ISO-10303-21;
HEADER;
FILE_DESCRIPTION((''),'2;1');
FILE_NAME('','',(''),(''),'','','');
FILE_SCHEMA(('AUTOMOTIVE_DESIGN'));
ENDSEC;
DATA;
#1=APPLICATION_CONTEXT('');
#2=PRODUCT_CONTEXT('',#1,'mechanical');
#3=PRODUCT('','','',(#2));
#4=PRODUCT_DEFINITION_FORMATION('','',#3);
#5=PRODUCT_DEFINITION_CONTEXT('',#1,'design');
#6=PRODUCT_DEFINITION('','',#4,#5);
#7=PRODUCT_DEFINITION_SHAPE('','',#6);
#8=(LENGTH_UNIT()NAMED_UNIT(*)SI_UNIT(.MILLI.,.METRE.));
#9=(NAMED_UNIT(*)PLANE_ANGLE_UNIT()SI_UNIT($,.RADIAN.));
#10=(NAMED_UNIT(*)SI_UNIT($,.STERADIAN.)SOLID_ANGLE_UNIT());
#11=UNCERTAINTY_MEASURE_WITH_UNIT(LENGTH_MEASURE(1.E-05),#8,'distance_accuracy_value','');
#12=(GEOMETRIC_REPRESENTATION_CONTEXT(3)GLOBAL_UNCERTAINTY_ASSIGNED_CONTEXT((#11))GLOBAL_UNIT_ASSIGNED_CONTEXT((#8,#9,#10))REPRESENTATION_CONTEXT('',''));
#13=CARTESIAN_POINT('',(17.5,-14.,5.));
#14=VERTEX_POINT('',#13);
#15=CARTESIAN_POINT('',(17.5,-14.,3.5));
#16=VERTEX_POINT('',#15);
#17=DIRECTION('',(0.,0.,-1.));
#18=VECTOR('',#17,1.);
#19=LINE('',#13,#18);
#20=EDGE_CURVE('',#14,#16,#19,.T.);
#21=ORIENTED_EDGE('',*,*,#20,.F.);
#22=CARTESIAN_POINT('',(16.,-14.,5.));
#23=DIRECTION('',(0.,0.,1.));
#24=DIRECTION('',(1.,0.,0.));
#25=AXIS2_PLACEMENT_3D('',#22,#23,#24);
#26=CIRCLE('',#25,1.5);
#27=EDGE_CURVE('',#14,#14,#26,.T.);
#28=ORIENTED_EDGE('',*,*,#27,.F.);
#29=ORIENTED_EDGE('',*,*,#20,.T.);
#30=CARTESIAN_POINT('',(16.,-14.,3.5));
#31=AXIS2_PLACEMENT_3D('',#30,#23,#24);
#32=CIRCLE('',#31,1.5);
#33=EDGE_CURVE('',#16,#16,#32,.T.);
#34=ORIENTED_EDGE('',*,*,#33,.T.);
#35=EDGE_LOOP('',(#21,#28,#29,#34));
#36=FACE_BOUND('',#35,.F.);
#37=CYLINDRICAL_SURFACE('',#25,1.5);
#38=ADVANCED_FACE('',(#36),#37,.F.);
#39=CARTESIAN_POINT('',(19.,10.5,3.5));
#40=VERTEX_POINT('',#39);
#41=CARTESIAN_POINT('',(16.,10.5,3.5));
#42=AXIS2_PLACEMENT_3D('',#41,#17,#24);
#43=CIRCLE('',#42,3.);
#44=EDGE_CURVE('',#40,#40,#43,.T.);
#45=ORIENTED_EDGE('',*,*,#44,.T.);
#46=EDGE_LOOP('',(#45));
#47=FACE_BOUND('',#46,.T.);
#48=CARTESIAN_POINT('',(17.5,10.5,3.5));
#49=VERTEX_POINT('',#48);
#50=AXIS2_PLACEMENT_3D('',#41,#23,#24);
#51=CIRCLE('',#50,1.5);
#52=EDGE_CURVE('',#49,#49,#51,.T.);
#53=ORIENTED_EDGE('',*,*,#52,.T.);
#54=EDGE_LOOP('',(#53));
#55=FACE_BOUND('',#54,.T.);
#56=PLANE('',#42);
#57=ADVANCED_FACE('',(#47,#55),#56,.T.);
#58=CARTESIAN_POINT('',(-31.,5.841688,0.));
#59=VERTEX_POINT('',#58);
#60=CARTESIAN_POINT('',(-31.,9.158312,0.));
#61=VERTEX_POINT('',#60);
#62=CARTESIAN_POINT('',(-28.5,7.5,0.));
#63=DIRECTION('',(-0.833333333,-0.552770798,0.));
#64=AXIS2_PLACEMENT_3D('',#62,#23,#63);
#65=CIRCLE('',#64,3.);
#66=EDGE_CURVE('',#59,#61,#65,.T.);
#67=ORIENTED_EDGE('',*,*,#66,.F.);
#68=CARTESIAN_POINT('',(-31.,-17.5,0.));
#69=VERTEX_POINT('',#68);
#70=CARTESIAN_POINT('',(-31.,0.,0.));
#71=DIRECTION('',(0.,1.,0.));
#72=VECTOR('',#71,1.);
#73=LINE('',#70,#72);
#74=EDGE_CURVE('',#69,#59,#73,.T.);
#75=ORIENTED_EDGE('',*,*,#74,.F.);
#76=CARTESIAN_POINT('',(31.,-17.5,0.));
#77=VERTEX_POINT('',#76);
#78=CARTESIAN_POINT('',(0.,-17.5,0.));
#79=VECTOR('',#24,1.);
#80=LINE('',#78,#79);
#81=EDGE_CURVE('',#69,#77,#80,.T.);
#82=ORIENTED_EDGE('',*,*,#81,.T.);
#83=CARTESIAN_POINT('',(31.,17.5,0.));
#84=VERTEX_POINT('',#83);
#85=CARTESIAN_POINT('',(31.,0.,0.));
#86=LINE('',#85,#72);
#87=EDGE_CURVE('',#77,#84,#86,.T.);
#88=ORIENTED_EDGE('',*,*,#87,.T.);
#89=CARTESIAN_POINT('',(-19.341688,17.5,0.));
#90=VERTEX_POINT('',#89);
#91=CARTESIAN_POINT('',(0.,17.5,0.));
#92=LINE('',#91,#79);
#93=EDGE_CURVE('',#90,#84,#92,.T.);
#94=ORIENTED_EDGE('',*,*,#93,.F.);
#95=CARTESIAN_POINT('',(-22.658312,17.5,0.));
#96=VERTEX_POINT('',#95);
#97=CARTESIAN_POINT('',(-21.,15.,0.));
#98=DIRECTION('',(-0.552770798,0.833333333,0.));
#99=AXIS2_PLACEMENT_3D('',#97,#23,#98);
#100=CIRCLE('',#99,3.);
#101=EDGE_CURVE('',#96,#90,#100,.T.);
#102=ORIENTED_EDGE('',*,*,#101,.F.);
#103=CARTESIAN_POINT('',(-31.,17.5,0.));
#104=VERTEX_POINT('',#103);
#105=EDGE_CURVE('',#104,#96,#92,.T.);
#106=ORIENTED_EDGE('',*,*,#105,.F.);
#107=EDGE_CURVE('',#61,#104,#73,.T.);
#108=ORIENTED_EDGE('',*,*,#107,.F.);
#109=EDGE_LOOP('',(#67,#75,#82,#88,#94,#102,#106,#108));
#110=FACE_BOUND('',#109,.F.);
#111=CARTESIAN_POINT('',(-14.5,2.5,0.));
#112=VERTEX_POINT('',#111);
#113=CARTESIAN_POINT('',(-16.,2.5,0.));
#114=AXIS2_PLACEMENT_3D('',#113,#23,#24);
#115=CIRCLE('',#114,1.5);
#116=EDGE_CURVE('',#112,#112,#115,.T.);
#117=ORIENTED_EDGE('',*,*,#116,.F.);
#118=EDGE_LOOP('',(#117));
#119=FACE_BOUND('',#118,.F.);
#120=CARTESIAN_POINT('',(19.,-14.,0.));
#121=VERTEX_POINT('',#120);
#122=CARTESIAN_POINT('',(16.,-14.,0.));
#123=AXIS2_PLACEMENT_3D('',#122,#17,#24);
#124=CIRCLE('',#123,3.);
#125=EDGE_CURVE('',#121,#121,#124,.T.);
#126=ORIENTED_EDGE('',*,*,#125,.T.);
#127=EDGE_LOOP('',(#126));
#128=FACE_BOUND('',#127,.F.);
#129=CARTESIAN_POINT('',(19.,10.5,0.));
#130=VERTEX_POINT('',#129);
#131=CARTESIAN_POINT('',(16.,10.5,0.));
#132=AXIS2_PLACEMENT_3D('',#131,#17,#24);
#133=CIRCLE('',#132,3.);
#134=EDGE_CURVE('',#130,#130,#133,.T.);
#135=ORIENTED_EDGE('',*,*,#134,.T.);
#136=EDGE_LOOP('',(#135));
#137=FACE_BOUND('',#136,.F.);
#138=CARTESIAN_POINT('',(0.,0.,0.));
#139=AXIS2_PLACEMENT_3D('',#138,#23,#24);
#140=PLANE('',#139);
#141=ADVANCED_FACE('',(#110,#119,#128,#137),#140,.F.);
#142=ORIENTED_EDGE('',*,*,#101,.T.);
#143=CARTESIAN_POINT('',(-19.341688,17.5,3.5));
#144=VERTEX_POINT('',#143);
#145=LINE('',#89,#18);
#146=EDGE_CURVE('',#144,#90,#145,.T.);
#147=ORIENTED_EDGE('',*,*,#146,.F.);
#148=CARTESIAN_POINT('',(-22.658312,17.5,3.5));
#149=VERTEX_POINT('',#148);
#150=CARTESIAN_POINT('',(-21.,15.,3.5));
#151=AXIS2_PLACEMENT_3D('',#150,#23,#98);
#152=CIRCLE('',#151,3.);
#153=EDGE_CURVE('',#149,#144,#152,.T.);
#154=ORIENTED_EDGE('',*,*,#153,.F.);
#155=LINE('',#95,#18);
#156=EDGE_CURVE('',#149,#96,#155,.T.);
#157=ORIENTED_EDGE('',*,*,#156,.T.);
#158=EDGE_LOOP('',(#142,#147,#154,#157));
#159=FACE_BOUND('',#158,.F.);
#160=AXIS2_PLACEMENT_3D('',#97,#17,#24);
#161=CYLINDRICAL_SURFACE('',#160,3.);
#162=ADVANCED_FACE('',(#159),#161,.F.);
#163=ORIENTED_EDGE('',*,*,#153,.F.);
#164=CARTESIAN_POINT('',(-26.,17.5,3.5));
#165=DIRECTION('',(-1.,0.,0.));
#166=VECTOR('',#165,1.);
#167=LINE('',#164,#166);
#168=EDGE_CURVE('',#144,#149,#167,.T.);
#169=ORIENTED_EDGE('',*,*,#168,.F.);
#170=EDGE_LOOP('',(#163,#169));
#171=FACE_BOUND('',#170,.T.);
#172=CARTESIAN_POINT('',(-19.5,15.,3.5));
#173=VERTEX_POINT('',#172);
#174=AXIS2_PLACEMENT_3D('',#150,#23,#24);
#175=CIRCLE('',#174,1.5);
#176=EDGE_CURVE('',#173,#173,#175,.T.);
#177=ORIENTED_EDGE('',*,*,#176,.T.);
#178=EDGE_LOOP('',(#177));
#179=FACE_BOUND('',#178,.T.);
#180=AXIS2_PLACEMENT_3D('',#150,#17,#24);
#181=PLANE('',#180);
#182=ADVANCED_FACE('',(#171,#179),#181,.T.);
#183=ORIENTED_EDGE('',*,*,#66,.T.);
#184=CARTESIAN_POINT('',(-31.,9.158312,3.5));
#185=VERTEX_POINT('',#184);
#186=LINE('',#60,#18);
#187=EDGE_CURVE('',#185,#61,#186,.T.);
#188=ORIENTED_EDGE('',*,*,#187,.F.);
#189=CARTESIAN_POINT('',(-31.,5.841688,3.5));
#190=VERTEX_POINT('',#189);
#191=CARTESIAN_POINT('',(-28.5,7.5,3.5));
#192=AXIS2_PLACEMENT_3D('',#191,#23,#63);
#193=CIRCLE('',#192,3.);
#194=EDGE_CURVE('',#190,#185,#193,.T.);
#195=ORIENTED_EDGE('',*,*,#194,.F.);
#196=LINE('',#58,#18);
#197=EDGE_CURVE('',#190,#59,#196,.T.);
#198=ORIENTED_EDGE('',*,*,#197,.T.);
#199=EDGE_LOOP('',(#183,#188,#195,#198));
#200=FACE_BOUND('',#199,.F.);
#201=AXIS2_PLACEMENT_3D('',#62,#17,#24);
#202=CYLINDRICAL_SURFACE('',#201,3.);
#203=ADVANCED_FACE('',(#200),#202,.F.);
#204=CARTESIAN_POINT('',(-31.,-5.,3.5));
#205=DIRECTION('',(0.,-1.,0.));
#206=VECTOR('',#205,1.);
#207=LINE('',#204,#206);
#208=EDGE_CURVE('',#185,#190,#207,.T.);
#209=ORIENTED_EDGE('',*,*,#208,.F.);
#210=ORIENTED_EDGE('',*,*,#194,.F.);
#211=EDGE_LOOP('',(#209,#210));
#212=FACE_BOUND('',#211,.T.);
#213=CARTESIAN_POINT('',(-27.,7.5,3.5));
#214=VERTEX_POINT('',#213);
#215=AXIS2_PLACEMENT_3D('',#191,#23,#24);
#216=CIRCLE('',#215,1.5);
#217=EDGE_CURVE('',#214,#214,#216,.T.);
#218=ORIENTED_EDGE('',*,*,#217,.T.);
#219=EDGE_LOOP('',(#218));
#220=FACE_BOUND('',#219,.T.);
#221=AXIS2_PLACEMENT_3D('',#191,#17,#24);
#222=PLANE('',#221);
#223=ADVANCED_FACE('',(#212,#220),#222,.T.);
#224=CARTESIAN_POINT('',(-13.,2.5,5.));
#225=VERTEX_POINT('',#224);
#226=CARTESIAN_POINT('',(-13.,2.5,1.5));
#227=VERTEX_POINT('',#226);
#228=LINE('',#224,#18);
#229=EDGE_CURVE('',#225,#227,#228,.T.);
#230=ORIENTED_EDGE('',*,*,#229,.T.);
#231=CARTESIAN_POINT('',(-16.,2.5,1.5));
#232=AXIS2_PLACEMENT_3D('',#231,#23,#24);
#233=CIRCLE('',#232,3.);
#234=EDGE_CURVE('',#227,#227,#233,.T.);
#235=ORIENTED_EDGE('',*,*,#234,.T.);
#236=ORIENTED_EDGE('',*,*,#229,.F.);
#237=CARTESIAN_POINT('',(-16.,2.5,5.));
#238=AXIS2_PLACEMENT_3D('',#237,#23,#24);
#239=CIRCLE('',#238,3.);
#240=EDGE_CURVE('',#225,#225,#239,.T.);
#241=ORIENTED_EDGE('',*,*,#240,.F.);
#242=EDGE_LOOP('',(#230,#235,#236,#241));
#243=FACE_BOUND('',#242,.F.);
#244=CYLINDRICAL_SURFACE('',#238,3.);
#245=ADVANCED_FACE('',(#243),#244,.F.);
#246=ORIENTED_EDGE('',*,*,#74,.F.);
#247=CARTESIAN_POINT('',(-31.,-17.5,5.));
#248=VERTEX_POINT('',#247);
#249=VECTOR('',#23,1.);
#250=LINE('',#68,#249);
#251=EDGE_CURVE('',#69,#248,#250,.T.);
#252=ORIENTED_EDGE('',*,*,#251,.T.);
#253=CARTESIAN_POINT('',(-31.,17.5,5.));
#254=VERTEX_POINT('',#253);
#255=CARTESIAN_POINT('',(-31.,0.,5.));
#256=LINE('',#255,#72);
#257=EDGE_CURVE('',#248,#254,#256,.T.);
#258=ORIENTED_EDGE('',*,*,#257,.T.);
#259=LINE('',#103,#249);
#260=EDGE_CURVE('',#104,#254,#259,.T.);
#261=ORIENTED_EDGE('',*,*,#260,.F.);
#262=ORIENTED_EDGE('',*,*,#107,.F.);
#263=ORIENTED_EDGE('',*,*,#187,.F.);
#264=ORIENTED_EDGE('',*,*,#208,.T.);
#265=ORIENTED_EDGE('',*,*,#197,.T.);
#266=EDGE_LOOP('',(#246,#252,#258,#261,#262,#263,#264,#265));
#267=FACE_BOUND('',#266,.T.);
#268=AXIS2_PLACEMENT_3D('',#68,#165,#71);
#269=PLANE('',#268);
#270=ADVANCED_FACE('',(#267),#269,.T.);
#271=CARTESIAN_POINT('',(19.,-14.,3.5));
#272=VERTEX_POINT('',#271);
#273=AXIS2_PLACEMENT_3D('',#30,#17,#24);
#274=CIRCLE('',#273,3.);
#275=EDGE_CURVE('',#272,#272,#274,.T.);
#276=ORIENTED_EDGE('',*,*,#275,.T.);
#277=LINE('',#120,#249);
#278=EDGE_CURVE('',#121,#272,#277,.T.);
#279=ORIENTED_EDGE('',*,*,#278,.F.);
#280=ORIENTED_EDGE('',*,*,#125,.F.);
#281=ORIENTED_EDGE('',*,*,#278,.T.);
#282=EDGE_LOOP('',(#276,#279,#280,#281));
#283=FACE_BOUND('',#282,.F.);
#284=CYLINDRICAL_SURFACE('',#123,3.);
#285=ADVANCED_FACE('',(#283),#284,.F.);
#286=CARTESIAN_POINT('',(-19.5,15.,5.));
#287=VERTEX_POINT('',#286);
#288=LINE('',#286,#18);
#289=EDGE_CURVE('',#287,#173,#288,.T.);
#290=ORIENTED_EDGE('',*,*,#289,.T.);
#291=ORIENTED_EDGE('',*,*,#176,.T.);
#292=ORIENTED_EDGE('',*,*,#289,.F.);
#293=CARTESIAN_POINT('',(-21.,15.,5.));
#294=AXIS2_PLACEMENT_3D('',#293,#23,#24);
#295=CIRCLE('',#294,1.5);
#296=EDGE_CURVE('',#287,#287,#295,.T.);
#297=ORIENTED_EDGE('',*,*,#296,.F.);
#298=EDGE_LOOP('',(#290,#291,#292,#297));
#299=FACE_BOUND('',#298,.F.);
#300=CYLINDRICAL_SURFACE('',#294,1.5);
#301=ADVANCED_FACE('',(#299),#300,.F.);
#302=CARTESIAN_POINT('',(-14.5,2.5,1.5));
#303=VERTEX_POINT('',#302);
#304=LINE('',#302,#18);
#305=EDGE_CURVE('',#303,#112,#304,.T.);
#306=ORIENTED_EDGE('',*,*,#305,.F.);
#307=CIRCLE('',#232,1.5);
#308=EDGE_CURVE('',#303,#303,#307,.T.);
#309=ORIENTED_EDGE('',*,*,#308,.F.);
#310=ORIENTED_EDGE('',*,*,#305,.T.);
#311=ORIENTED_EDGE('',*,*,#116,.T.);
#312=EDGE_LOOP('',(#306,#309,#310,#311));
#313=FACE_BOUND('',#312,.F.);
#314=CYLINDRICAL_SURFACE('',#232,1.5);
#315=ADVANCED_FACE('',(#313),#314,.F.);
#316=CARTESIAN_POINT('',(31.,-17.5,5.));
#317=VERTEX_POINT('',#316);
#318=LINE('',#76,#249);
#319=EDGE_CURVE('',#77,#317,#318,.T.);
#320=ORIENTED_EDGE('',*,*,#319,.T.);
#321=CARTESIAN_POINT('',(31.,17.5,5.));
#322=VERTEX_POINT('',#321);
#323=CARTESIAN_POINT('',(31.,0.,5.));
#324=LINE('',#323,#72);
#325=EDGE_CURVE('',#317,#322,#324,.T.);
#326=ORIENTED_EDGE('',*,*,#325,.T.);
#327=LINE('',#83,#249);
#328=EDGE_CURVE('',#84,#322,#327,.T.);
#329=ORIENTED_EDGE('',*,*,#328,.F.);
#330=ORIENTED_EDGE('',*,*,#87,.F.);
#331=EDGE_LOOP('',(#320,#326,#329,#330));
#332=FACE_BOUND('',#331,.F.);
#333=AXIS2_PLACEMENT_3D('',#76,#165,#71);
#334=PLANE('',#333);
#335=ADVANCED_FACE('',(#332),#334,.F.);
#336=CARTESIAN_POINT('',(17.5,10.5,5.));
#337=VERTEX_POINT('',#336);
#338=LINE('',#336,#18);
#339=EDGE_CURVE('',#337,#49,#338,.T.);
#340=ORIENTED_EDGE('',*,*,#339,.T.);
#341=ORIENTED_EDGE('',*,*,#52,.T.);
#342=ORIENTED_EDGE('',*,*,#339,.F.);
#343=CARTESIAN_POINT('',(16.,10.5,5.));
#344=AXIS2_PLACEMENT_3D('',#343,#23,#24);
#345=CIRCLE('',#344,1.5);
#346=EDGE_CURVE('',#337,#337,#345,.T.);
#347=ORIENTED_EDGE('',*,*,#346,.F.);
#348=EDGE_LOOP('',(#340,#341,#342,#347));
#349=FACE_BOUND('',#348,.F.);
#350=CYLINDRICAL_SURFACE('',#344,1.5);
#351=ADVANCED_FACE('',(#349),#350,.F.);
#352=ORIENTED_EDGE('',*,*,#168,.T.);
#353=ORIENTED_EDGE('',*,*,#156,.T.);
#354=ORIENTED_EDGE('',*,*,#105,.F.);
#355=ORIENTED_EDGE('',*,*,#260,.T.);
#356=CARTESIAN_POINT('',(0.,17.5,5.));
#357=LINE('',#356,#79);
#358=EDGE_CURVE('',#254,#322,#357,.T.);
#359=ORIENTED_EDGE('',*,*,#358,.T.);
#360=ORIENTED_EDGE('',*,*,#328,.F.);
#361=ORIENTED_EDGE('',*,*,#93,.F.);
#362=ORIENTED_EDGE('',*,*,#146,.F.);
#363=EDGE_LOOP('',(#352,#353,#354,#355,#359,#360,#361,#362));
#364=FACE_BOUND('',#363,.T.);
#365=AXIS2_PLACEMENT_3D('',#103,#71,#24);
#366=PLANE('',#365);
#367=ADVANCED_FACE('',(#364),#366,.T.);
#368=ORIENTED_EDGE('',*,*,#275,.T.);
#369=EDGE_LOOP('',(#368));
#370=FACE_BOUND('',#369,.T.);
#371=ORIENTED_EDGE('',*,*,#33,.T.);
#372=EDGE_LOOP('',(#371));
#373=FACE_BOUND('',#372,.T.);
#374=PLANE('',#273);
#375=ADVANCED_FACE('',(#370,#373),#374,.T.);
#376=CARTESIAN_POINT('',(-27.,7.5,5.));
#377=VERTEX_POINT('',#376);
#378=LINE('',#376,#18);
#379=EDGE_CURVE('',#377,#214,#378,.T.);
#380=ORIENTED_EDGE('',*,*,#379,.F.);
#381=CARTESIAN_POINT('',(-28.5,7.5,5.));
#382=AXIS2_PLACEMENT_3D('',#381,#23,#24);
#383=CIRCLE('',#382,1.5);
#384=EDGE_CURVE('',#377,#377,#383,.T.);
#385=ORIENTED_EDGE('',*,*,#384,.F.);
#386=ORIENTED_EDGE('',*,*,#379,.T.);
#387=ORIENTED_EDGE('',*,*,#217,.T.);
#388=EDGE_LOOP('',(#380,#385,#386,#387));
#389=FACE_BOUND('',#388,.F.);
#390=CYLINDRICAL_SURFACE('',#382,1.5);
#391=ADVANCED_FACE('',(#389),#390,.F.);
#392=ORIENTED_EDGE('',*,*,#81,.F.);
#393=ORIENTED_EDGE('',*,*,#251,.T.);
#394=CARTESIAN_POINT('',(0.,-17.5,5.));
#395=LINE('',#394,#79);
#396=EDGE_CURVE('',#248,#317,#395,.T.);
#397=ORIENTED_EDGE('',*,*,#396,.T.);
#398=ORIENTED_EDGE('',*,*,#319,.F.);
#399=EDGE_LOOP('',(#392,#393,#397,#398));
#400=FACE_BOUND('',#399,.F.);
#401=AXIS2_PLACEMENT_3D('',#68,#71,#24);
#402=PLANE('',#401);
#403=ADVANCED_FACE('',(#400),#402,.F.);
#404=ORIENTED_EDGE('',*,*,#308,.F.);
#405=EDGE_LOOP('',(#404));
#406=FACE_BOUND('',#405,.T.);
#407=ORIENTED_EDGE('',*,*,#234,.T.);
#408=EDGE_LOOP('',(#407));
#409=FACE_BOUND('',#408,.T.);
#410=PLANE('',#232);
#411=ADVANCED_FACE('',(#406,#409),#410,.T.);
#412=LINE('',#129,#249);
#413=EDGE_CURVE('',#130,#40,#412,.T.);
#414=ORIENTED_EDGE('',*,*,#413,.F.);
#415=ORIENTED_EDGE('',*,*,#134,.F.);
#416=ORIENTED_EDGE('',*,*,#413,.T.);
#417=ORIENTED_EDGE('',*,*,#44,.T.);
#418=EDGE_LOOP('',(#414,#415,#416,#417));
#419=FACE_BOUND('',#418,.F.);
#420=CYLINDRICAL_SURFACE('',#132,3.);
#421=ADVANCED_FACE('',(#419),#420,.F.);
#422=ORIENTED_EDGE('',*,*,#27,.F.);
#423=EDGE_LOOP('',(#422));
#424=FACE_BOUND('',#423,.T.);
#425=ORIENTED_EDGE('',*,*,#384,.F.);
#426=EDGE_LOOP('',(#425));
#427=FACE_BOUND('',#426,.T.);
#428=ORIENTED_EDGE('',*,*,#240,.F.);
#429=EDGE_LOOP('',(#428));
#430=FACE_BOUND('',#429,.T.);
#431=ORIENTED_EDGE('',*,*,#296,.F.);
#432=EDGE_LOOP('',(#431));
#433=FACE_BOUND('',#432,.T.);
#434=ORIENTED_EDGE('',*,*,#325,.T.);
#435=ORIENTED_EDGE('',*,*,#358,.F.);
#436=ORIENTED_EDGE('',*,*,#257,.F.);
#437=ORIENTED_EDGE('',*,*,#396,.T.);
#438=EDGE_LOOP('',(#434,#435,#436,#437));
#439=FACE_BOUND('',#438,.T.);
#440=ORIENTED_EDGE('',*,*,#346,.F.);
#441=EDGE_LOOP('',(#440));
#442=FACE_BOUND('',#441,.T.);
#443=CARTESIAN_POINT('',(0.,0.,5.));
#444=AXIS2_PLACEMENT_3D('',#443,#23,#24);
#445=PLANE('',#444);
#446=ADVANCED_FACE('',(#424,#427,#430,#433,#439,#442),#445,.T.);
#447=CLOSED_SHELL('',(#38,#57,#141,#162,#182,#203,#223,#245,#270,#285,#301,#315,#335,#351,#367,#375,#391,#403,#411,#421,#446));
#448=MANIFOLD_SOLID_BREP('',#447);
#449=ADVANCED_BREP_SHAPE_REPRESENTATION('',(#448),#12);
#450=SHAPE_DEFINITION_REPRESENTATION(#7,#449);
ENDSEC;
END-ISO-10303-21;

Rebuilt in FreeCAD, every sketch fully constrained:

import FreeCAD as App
import Part
import Sketcher

V = App.Vector
Q = App.Units.Quantity


def add_polygon(sketch, points):
    """Adds a closed chain of lines whose ends are joined by coincident constraints."""
    first, n = sketch.GeometryCount, len(points)
    for a, b in zip(points, points[1:] + points[:1]):
        sketch.addGeometry(Part.LineSegment(App.Vector(*a, 0), App.Vector(*b, 0)), False)
    for i in range(n):
        sketch.addConstraint(Sketcher.Constraint("Coincident", first + i, 2, first + (i + 1) % n, 1))

doc = App.newDocument("Part")
body = doc.addObject("PartDesign::Body", "Body")

# Sketch on XY plane
sketch1 = body.newObject("Sketcher::SketchObject", "Sketch")
sketch1.AttachmentSupport = (doc.getObject("XY_Plane"), [""])
sketch1.MapMode = "FlatFace"
add_polygon(sketch1, [(-31, 17.5), (-31, -17.5), (31, -17.5), (31, 17.5)])  # lines 0-3
sketch1.addConstraint([
    Sketcher.Constraint("Vertical", 0),
    Sketcher.Constraint("Horizontal", 1),
    Sketcher.Constraint("Vertical", 2),
    Sketcher.Constraint("Horizontal", 3),
    Sketcher.Constraint("Symmetric", 0, 2, 2, 2, -1, 1),
    Sketcher.Constraint("DistanceX", 1, 1, 1, 2, Q("62 mm")),
    Sketcher.Constraint("DistanceY", 0, 2, 0, 1, Q("35 mm")),
])
pad1 = body.newObject("PartDesign::Pad", "Pad")
pad1.Profile = sketch1
pad1.Length = 5

# Sketch on XY plane
sketch2 = body.newObject("Sketcher::SketchObject", "Sketch001")
sketch2.AttachmentSupport = (doc.getObject("XY_Plane"), [""])
sketch2.MapMode = "FlatFace"
sketch2.AttachmentOffset = App.Placement(V(0, 0, 5), App.Rotation())
sketch2.addGeometry([
    Part.Circle(V(-28.5, 7.5, 0), V(0, 0, 1), 1.5),
    Part.Circle(V(-21, 15, 0), V(0, 0, 1), 1.5),
], False)
sketch2.addConstraint([
    Sketcher.Constraint("Equal", 0, 1),
    Sketcher.Constraint("Diameter", 0, Q("3 mm")),
    Sketcher.Constraint("DistanceX", 1, 3, -1, 1, Q("21 mm")),
    Sketcher.Constraint("DistanceY", -1, 1, 1, 3, Q("15 mm")),
    Sketcher.Constraint("DistanceX", 0, 3, -1, 1, Q("28.5 mm")),
    Sketcher.Constraint("DistanceY", -1, 1, 0, 3, Q("7.5 mm")),
])
pocket1 = body.newObject("PartDesign::Pocket", "Pocket")
pocket1.Profile = sketch2
pocket1.Length = 5

# Sketch on XY plane
sketch3 = body.newObject("Sketcher::SketchObject", "Sketch002")
sketch3.AttachmentSupport = (doc.getObject("XY_Plane"), [""])
sketch3.MapMode = "FlatFace"
sketch3.addGeometry([
    Part.Circle(V(-28.5, 7.5, 0), V(0, 0, 1), 3),
    Part.Circle(V(-21, 15, 0), V(0, 0, 1), 3),
], False)
sketch3.addConstraint([
    Sketcher.Constraint("Equal", 0, 1),
    Sketcher.Constraint("Diameter", 0, Q("6 mm")),
    Sketcher.Constraint("DistanceX", 1, 3, -1, 1, Q("21 mm")),
    Sketcher.Constraint("DistanceY", -1, 1, 1, 3, Q("15 mm")),
    Sketcher.Constraint("DistanceX", 0, 3, -1, 1, Q("28.5 mm")),
    Sketcher.Constraint("DistanceY", -1, 1, 0, 3, Q("7.5 mm")),
])
pocket2 = body.newObject("PartDesign::Pocket", "Pocket001")
pocket2.Profile = sketch3
pocket2.Length = 3.5
pocket2.Reversed = True

# Sketch on XY plane
sketch4 = body.newObject("Sketcher::SketchObject", "Sketch003")
sketch4.AttachmentSupport = (doc.getObject("XY_Plane"), [""])
sketch4.MapMode = "FlatFace"
sketch4.AttachmentOffset = App.Placement(V(0, 0, 5), App.Rotation())
sketch4.addGeometry(Part.Circle(V(-16, 2.5, 0), V(0, 0, 1), 3), False)
sketch4.addConstraint([
    Sketcher.Constraint("Diameter", 0, Q("6 mm")),
    Sketcher.Constraint("DistanceX", 0, 3, -1, 1, Q("16 mm")),
    Sketcher.Constraint("DistanceY", -1, 1, 0, 3, Q("2.5 mm")),
])
pocket3 = body.newObject("PartDesign::Pocket", "Pocket002")
pocket3.Profile = sketch4
pocket3.Length = 3.5

# Sketch on XY plane
sketch5 = body.newObject("Sketcher::SketchObject", "Sketch004")
sketch5.AttachmentSupport = (doc.getObject("XY_Plane"), [""])
sketch5.MapMode = "FlatFace"
sketch5.AttachmentOffset = App.Placement(V(0, 0, 1.5), App.Rotation())
sketch5.addGeometry(Part.Circle(V(-16, 2.5, 0), V(0, 0, 1), 1.5), False)
sketch5.addConstraint([
    Sketcher.Constraint("Diameter", 0, Q("3 mm")),
    Sketcher.Constraint("DistanceX", 0, 3, -1, 1, Q("16 mm")),
    Sketcher.Constraint("DistanceY", -1, 1, 0, 3, Q("2.5 mm")),
])
pocket4 = body.newObject("PartDesign::Pocket", "Pocket003")
pocket4.Profile = sketch5
pocket4.Length = 5

# Sketch on XY plane
sketch6 = body.newObject("Sketcher::SketchObject", "Sketch005")
sketch6.AttachmentSupport = (doc.getObject("XY_Plane"), [""])
sketch6.MapMode = "FlatFace"
sketch6.AttachmentOffset = App.Placement(V(0, 0, 5), App.Rotation())
sketch6.addGeometry([
    Part.Circle(V(16, 10.5, 0), V(0, 0, 1), 1.5),
    Part.Circle(V(16, -14, 0), V(0, 0, 1), 1.5),
], False)
sketch6.addConstraint([
    Sketcher.Constraint("Equal", 0, 1),
    Sketcher.Constraint("Vertical", 0, 3, 1, 3),
    Sketcher.Constraint("Diameter", 0, Q("3 mm")),
    Sketcher.Constraint("DistanceX", -1, 1, 0, 3, Q("16 mm")),
    Sketcher.Constraint("DistanceY", 1, 3, -1, 1, Q("14 mm")),
    Sketcher.Constraint("DistanceY", -1, 1, 0, 3, Q("10.5 mm")),
])
pocket5 = body.newObject("PartDesign::Pocket", "Pocket004")
pocket5.Profile = sketch6
pocket5.Length = 5

# Sketch on XY plane
sketch7 = body.newObject("Sketcher::SketchObject", "Sketch006")
sketch7.AttachmentSupport = (doc.getObject("XY_Plane"), [""])
sketch7.MapMode = "FlatFace"
sketch7.addGeometry([
    Part.Circle(V(16, -14, 0), V(0, 0, 1), 3),
    Part.Circle(V(16, 10.5, 0), V(0, 0, 1), 3),
], False)
sketch7.addConstraint([
    Sketcher.Constraint("Equal", 0, 1),
    Sketcher.Constraint("Vertical", 0, 3, 1, 3),
    Sketcher.Constraint("Diameter", 0, Q("6 mm")),
    Sketcher.Constraint("DistanceX", -1, 1, 0, 3, Q("16 mm")),
    Sketcher.Constraint("DistanceY", 0, 3, -1, 1, Q("14 mm")),
    Sketcher.Constraint("DistanceY", -1, 1, 1, 3, Q("10.5 mm")),
])
pocket6 = body.newObject("PartDesign::Pocket", "Pocket005")
pocket6.Profile = sketch7
pocket6.Length = 3.5
pocket6.Reversed = True

doc.recompute()
